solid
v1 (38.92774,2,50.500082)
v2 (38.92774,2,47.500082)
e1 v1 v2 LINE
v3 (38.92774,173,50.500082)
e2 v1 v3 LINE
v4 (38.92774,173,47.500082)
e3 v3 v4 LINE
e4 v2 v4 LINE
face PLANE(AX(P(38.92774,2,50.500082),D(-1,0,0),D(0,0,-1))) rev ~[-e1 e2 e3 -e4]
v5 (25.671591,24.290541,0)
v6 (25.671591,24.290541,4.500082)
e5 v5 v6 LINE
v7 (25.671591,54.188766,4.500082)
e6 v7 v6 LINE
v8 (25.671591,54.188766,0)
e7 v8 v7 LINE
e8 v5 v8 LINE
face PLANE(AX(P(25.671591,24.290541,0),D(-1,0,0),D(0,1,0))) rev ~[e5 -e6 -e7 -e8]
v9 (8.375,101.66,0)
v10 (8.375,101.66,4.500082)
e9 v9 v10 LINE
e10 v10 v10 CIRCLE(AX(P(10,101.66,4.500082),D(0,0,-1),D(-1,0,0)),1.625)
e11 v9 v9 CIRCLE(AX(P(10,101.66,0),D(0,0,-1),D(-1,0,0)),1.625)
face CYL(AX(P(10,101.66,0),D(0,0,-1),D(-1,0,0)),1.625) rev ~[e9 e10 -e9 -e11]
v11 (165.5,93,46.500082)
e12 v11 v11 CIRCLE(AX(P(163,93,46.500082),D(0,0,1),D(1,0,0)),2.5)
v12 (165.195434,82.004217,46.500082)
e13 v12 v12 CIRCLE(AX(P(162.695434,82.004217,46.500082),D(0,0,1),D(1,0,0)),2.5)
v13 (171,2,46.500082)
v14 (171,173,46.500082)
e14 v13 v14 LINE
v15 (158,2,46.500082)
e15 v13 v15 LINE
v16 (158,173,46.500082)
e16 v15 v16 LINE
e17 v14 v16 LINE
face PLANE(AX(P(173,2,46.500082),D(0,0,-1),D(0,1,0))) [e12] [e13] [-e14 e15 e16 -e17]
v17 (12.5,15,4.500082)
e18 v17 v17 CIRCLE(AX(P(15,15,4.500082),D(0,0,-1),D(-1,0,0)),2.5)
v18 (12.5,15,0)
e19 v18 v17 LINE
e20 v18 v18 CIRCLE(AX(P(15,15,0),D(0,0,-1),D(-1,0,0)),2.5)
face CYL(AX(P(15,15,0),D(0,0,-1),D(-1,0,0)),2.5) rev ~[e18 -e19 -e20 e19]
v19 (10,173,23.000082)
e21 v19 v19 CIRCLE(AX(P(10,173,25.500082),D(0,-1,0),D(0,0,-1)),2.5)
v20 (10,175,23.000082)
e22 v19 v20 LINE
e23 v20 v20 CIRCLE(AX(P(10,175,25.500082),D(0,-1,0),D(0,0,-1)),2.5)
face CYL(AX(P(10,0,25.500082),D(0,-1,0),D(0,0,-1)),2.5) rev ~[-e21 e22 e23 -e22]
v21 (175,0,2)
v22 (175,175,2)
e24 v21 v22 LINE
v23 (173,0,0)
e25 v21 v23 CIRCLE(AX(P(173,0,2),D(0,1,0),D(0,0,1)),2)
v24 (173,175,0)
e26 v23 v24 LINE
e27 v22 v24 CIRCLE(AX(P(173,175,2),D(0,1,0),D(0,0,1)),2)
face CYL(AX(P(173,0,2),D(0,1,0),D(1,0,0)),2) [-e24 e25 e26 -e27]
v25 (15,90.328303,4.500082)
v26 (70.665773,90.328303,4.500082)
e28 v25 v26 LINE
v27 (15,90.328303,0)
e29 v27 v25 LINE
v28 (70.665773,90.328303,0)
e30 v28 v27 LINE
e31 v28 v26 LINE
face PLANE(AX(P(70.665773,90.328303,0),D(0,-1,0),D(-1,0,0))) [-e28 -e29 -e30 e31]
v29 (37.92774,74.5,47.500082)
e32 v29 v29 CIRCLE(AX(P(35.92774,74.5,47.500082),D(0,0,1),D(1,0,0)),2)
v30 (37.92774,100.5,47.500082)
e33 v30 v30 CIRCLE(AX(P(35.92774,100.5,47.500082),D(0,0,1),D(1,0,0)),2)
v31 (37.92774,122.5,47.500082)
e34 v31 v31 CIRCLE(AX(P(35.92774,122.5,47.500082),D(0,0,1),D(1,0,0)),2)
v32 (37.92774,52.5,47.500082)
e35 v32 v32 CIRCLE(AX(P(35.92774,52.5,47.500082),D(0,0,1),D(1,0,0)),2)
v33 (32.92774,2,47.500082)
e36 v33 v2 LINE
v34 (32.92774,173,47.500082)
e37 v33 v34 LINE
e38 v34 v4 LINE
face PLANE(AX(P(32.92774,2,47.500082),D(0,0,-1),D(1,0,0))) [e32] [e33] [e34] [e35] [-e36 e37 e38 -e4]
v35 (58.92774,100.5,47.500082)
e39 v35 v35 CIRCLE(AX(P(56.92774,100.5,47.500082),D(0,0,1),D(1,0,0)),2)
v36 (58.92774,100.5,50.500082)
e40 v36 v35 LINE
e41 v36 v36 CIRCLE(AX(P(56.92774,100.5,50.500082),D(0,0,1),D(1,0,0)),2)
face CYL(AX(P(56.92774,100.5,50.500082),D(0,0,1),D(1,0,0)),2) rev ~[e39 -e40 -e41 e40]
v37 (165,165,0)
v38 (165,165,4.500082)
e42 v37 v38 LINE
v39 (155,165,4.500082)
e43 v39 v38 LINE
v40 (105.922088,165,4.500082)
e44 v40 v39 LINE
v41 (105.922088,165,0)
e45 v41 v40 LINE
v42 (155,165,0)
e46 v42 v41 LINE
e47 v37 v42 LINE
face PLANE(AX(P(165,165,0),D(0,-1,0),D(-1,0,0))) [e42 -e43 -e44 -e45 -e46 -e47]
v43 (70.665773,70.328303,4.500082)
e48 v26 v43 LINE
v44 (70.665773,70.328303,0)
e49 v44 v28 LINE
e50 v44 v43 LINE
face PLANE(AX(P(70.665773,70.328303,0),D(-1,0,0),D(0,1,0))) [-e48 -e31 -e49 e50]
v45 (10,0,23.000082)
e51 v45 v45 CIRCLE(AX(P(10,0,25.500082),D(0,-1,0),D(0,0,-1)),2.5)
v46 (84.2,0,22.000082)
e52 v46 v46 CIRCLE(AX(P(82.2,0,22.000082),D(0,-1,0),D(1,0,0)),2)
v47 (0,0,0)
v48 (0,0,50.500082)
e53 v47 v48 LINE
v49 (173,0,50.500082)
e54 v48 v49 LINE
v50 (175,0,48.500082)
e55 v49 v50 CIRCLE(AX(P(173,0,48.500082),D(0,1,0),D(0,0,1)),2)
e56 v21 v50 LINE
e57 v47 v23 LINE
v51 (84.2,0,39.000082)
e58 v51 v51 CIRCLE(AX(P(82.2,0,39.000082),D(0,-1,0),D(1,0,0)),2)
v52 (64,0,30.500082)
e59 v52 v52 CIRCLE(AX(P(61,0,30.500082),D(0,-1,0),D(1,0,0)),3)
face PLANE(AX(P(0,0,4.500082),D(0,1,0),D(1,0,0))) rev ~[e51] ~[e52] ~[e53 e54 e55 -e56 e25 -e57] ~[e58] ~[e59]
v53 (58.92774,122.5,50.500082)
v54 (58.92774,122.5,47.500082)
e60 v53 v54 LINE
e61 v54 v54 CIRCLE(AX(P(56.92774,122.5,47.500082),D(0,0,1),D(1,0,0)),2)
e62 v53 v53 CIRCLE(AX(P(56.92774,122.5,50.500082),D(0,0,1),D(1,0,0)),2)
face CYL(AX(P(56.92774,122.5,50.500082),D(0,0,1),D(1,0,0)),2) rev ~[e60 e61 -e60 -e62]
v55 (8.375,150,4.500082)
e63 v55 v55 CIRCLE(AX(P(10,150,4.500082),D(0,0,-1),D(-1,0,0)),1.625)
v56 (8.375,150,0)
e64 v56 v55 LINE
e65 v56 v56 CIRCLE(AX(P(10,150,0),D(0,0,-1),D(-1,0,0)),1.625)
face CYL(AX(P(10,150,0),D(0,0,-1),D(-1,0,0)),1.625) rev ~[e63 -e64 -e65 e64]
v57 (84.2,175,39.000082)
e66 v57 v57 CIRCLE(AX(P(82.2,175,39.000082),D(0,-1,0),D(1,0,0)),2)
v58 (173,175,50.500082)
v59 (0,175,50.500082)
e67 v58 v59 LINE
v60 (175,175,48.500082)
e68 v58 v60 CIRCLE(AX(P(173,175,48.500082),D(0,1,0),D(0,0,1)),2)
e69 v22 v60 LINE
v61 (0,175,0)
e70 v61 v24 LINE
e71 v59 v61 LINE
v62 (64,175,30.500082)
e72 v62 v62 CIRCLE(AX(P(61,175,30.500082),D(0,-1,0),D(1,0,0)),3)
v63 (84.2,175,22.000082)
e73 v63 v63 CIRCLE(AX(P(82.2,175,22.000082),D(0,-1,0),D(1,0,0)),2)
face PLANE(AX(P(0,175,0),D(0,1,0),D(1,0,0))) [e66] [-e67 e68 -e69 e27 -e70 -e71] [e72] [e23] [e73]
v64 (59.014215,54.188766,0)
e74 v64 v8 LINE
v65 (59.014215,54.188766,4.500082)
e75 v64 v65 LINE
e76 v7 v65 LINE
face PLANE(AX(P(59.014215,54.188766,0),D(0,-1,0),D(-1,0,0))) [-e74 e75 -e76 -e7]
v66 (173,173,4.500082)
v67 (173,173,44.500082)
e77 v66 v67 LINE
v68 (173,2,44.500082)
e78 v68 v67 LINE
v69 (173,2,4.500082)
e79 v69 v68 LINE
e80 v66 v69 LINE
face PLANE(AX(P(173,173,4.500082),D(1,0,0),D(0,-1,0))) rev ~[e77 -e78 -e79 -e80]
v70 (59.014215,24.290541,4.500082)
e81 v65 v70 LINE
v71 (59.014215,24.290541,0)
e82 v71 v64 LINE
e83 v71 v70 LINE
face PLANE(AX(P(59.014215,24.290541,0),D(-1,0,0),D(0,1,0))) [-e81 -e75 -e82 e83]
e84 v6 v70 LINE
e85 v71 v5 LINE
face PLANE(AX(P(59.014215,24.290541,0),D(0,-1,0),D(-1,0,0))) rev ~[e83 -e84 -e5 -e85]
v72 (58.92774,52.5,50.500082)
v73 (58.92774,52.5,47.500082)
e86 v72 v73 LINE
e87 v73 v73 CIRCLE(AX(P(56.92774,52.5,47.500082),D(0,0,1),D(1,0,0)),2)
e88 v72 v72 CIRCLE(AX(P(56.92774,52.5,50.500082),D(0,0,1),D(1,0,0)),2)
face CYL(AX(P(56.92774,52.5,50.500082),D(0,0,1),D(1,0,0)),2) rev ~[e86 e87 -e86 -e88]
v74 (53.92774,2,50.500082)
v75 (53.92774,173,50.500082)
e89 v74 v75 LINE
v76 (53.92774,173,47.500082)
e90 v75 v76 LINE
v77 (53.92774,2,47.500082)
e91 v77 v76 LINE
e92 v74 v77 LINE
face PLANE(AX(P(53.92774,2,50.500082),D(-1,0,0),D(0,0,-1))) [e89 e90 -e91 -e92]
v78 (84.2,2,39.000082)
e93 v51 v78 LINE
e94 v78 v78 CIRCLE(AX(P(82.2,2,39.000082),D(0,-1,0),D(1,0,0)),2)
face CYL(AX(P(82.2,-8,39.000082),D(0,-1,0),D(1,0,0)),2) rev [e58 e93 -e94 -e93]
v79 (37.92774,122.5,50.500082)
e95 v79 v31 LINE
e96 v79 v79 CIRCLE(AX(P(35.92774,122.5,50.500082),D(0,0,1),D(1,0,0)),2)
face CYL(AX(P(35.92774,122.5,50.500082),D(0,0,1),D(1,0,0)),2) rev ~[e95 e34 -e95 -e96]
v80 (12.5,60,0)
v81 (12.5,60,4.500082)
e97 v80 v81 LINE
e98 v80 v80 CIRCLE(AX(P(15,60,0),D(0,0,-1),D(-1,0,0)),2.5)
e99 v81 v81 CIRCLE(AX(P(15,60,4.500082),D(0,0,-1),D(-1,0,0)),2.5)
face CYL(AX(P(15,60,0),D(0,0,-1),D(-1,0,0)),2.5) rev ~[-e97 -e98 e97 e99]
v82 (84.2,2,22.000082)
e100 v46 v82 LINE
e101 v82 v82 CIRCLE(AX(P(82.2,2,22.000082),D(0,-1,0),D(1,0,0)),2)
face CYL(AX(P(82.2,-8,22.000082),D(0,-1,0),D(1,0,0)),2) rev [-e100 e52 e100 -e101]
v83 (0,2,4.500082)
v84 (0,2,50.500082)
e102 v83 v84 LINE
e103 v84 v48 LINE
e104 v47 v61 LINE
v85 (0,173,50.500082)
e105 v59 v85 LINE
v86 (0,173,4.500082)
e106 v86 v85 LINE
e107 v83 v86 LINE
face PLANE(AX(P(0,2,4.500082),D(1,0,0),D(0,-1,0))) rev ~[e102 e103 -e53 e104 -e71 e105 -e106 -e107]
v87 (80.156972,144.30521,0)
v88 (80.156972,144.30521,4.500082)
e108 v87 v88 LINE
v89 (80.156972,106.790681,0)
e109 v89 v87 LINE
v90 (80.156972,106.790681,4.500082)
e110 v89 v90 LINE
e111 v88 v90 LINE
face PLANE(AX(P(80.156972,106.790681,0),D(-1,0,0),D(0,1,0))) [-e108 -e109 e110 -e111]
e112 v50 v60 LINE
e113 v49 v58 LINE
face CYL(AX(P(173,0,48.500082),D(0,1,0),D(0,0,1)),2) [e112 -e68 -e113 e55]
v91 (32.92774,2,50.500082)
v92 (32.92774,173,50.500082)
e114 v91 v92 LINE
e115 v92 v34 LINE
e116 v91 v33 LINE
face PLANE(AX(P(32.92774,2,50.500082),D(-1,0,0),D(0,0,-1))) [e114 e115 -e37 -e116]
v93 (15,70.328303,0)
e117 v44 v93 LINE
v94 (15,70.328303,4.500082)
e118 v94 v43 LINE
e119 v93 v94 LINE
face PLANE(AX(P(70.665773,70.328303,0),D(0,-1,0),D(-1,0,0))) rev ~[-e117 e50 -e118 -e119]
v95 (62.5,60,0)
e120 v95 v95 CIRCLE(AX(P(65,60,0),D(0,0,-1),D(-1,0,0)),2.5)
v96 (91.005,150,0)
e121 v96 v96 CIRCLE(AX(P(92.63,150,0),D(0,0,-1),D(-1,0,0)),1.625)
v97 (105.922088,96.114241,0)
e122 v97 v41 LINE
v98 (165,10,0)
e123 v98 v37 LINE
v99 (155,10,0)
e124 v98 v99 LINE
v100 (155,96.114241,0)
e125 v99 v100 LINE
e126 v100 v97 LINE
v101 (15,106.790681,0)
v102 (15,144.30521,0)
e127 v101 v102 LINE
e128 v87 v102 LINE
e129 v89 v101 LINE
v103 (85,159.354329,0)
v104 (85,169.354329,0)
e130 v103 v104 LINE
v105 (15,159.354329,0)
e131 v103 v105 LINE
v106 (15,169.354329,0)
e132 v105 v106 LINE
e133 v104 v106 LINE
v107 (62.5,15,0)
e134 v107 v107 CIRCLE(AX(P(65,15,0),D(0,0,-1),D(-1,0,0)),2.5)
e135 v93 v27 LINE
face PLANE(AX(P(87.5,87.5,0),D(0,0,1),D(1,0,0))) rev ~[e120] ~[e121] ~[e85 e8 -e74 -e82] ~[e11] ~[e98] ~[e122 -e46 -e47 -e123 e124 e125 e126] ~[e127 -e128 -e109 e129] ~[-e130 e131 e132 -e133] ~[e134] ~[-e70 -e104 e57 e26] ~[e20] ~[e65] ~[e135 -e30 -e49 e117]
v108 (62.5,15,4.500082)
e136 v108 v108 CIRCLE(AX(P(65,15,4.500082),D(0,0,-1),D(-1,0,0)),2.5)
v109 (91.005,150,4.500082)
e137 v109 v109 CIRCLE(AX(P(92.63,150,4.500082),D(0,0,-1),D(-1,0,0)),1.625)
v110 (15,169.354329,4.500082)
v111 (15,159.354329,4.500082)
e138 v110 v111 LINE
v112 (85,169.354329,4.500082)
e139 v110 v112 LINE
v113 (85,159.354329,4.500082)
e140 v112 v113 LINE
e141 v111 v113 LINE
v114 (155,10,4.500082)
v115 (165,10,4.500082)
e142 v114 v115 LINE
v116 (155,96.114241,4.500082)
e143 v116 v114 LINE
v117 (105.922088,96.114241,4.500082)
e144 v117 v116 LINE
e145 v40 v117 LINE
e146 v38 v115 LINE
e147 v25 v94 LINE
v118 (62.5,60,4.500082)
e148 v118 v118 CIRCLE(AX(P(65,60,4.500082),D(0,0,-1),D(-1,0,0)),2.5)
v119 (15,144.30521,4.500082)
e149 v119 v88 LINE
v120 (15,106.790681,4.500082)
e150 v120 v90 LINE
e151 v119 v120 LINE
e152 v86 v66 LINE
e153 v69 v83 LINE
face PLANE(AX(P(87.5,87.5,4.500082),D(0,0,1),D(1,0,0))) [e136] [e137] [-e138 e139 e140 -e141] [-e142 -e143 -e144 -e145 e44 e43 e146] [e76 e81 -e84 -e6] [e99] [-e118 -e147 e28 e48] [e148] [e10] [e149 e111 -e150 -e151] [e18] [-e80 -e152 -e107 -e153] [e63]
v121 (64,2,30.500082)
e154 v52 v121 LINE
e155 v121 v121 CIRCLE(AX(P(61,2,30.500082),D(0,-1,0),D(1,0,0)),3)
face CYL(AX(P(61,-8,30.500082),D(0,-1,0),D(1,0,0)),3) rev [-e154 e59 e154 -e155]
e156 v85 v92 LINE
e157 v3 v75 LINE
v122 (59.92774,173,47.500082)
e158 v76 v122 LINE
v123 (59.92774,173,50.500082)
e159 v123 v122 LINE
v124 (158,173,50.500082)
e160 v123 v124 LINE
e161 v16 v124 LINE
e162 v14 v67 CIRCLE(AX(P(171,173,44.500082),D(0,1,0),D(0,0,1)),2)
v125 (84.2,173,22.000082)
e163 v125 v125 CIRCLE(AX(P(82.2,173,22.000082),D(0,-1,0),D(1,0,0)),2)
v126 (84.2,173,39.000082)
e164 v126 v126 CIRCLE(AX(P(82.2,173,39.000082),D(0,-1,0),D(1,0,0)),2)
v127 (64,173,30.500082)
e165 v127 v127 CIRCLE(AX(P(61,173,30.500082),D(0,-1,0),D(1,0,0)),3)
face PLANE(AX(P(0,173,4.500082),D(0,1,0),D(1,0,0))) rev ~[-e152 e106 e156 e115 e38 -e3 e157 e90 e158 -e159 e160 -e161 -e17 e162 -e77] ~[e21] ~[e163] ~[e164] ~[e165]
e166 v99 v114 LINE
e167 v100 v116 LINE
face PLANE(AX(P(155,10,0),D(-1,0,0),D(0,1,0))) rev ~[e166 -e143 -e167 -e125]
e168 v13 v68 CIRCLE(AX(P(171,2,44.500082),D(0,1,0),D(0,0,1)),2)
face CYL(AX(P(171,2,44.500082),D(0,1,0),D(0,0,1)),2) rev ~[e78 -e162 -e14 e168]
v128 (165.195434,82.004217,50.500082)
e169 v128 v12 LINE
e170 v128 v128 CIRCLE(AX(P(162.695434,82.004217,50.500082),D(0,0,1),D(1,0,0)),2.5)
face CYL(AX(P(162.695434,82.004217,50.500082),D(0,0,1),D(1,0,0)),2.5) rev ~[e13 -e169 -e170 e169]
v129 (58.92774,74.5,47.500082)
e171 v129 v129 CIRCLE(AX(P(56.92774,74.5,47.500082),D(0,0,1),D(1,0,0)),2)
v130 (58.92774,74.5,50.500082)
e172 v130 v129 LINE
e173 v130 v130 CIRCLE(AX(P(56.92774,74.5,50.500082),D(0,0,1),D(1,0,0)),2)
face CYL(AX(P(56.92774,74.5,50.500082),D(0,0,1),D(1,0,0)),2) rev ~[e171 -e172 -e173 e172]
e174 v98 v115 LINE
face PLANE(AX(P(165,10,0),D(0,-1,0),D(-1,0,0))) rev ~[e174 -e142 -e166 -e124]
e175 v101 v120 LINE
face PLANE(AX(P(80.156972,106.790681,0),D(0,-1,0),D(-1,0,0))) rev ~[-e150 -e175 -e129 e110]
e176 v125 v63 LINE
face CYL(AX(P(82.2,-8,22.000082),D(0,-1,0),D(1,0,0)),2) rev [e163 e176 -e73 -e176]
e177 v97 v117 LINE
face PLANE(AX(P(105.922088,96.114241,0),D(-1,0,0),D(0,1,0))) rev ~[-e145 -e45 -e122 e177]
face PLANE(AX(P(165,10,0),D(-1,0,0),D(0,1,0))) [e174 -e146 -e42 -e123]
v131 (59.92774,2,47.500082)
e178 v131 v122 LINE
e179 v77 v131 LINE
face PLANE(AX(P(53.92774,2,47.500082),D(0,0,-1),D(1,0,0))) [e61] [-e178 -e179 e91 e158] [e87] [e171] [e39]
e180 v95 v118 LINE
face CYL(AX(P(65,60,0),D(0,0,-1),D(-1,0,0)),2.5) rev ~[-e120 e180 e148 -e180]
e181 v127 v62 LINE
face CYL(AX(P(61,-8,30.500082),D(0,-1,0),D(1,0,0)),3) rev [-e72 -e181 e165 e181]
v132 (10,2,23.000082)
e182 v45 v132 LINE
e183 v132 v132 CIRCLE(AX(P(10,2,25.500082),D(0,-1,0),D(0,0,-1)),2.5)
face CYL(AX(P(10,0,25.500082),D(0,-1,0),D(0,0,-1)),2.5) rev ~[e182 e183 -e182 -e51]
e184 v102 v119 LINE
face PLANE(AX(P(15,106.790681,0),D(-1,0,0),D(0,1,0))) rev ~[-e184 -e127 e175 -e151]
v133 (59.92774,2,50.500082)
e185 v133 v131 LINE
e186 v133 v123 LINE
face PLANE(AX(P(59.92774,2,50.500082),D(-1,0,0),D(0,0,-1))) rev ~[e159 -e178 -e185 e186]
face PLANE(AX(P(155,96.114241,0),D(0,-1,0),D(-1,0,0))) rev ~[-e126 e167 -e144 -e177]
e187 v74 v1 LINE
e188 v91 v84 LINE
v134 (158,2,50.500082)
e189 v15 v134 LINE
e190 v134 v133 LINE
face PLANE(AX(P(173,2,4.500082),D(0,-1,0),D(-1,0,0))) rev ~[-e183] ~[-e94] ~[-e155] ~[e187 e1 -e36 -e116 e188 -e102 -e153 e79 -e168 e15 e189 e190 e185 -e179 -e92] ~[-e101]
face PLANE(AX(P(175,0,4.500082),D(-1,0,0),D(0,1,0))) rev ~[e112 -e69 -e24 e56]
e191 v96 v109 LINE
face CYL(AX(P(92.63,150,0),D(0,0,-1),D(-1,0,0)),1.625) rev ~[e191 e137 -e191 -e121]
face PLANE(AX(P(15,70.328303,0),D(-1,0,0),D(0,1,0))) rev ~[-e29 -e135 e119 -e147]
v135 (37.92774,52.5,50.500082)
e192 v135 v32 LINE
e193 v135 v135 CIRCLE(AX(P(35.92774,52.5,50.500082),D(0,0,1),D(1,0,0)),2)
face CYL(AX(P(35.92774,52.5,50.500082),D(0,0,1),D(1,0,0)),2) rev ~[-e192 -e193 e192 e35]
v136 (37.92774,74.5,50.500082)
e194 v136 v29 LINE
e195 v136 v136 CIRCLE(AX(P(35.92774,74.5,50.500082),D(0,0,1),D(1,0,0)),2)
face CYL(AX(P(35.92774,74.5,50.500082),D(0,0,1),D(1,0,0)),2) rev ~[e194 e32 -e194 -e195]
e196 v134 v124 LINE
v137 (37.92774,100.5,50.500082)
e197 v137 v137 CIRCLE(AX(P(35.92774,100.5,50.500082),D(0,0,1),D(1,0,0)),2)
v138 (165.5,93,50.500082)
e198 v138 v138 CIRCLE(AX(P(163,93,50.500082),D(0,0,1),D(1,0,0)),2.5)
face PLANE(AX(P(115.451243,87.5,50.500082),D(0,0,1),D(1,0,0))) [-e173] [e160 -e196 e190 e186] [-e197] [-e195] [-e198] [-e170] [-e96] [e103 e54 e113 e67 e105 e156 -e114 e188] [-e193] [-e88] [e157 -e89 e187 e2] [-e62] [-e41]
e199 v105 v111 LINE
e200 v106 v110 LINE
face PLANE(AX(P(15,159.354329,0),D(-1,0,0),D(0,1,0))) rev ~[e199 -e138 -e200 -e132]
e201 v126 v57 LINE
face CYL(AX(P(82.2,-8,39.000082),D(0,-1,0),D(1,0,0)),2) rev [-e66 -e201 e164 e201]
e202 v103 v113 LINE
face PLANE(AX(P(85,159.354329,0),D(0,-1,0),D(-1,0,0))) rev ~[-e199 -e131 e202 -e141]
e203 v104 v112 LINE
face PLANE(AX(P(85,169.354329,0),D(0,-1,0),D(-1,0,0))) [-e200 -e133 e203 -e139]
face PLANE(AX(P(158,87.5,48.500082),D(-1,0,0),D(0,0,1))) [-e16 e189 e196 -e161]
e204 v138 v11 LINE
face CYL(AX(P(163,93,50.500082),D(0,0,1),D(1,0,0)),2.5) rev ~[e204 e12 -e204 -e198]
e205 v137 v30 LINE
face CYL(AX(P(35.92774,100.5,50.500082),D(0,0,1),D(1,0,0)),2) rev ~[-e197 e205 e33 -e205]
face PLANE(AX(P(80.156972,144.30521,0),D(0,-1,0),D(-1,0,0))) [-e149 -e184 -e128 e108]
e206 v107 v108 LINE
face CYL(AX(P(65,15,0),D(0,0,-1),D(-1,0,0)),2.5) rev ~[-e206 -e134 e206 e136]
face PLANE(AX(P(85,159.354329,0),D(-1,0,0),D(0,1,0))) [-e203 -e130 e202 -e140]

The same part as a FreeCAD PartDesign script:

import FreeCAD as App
import Part
import Sketcher
Q = App.Units.Quantity


def edges_at(feature, points):
    """Names of the edges that pass closest to the given points."""
    edges = feature.Shape.Edges
    near = lambda p: min(range(len(edges)), key=lambda i: edges[i].distToShape(Part.Vertex(*p))[0])
    return sorted({f"Edge{near(p) + 1}" for p in points})


def add_polygon(sketch, points):
    """Adds a closed chain of lines whose ends are joined by coincident constraints."""
    first, n = sketch.GeometryCount, len(points)
    for a, b in zip(points, points[1:] + points[:1]):
        sketch.addGeometry(Part.LineSegment(App.Vector(*a, 0), App.Vector(*b, 0)), False)
    for i in range(n):
        sketch.addConstraint(Sketcher.Constraint("Coincident", first + i, 2, first + (i + 1) % n, 1))

doc = App.newDocument("Part")
body = doc.addObject("PartDesign::Body", "Body")

sketch1 = doc.addObject("Sketcher::SketchObject", "Sketch")
body.addObject(sketch1)
sketch1.AttachmentSupport = (doc.XY_Plane, [""])
sketch1.MapMode = "FlatFace"
add_polygon(sketch1, [(0, 175), (0, 0), (175, 0), (175, 175)])
sketch1.addConstraint(Sketcher.Constraint("Vertical", 0))
sketch1.addConstraint(Sketcher.Constraint("Horizontal", 1))
sketch1.addConstraint(Sketcher.Constraint("Vertical", 2))
sketch1.addConstraint(Sketcher.Constraint("Horizontal", 3))
sketch1.addConstraint(Sketcher.Constraint("Coincident", 0, 2, -1, 1))
sketch1.addConstraint(Sketcher.Constraint("Equal", 3, 0))
sketch1.addConstraint(Sketcher.Constraint("DistanceX", 1, 1, 1, 2, Q("175 mm")))
pad1 = doc.addObject("PartDesign::Pad", "Pad")
body.addObject(pad1)
pad1.Profile = sketch1
pad1.Length = 4.500082

sketch2 = doc.addObject("Sketcher::SketchObject", "Sketch001")
body.addObject(sketch2)
sketch2.AttachmentSupport = (doc.XY_Plane, [""])
sketch2.MapMode = "FlatFace"
sketch2.AttachmentOffset = App.Placement(App.Vector(0, 0, 4.500082), App.Rotation())
add_polygon(sketch2, [(0, 2), (0, 0), (175, 0), (175, 175), (0, 175), (0, 173), (173, 173), (173, 2)])
sketch2.addConstraint(Sketcher.Constraint("Vertical", 0))
sketch2.addConstraint(Sketcher.Constraint("Horizontal", 1))
sketch2.addConstraint(Sketcher.Constraint("Vertical", 2))
sketch2.addConstraint(Sketcher.Constraint("Horizontal", 3))
sketch2.addConstraint(Sketcher.Constraint("Vertical", 4))
sketch2.addConstraint(Sketcher.Constraint("Horizontal", 5))
sketch2.addConstraint(Sketcher.Constraint("Vertical", 6))
sketch2.addConstraint(Sketcher.Constraint("Horizontal", 7))
sketch2.addConstraint(Sketcher.Constraint("Coincident", 0, 2, -1, 1))
sketch2.addConstraint(Sketcher.Constraint("PointOnObject", 3, 2, -2))
sketch2.addConstraint(Sketcher.Constraint("Equal", 3, 2))
sketch2.addConstraint(Sketcher.Constraint("Equal", 0, 4))
sketch2.addConstraint(Sketcher.Constraint("DistanceX", 1, 1, 1, 2, Q("175 mm")))
sketch2.addConstraint(Sketcher.Constraint("DistanceX", 5, 1, 5, 2, Q("173 mm")))
sketch2.addConstraint(Sketcher.Constraint("DistanceY", 0, 2, 0, 1, Q("2 mm")))
pad2 = doc.addObject("PartDesign::Pad", "Pad001")
body.addObject(pad2)
pad2.Profile = sketch2
pad2.Length = 46

sketch3 = doc.addObject("Sketcher::SketchObject", "Sketch002")
body.addObject(sketch3)
sketch3.AttachmentSupport = (doc.YZ_Plane, [""])
sketch3.MapMode = "FlatFace"
sketch3.AttachmentOffset = App.Placement(App.Vector(0, 0, 173), App.Rotation())
add_polygon(sketch3, [(173, 46.500082), (2, 46.500082), (2, 50.500082), (173, 50.500082)])
sketch3.addConstraint(Sketcher.Constraint("Horizontal", 0))
sketch3.addConstraint(Sketcher.Constraint("Vertical", 1))
sketch3.addConstraint(Sketcher.Constraint("Horizontal", 2))
sketch3.addConstraint(Sketcher.Constraint("Vertical", 3))
sketch3.addConstraint(Sketcher.Constraint("DistanceX", 0, 2, 0, 1, Q("171 mm")))
sketch3.addConstraint(Sketcher.Constraint("DistanceY", 1, 1, 1, 2, Q("4 mm")))
sketch3.addConstraint(Sketcher.Constraint("DistanceX", -1, 1, 0, 2, Q("2 mm")))
sketch3.addConstraint(Sketcher.Constraint("DistanceY", -1, 1, 0, 2, Q("46.500082 mm")))
pad3 = doc.addObject("PartDesign::Pad", "Pad002")
body.addObject(pad3)
pad3.Profile = sketch3
pad3.Length = 15
pad3.Reversed = True

sketch4 = doc.addObject("Sketcher::SketchObject", "Sketch003")
body.addObject(sketch4)
sketch4.AttachmentSupport = (doc.XY_Plane, [""])
sketch4.MapMode = "FlatFace"
sketch4.AttachmentOffset = App.Placement(App.Vector(0, 0, 50.500082), App.Rotation())
sketch4.addGeometry(Part.Circle(App.Vector(162.695434, 82.004217, 0), App.Vector(0, 0, 1), 2.5), False)
sketch4.addGeometry(Part.Circle(App.Vector(163, 93, 0), App.Vector(0, 0, 1), 2.5), False)
sketch4.addConstraint(Sketcher.Constraint("Equal", 0, 1))
sketch4.addConstraint(Sketcher.Constraint("Diameter", 0, Q("5 mm")))
sketch4.addConstraint(Sketcher.Constraint("DistanceX", -1, 1, 1, 3, Q("163 mm")))
sketch4.addConstraint(Sketcher.Constraint("DistanceY", -1, 1, 1, 3, Q("93 mm")))
sketch4.addConstraint(Sketcher.Constraint("DistanceX", -1, 1, 0, 3, Q("162.695434 mm")))
sketch4.addConstraint(Sketcher.Constraint("DistanceY", -1, 1, 0, 3, Q("82.004217 mm")))
pocket1 = doc.addObject("PartDesign::Pocket", "Pocket")
body.addObject(pocket1)
pocket1.Profile = sketch4
pocket1.Length = 15

sketch5 = doc.addObject("Sketcher::SketchObject", "Sketch004")
body.addObject(sketch5)
sketch5.AttachmentSupport = (doc.XZ_Plane, [""])
sketch5.MapMode = "FlatFace"
sketch5.addGeometry(Part.Circle(App.Vector(10, 25.500082, 0), App.Vector(0, 0, 1), 2.5), False)
sketch5.addConstraint(Sketcher.Constraint("Diameter", 0, Q("5 mm")))
sketch5.addConstraint(Sketcher.Constraint("DistanceX", -1, 1, 0, 3, Q("10 mm")))
sketch5.addConstraint(Sketcher.Constraint("DistanceY", -1, 1, 0, 3, Q("25.500082 mm")))
pocket2 = doc.addObject("PartDesign::Pocket", "Pocket001")
body.addObject(pocket2)
pocket2.Profile = sketch5
pocket2.Type = "ThroughAll"

sketch6 = doc.addObject("Sketcher::SketchObject", "Sketch005")
body.addObject(sketch6)
sketch6.AttachmentSupport = (doc.XY_Plane, [""])
sketch6.MapMode = "FlatFace"
add_polygon(sketch6, [(165, 165), (165, 10), (155, 10), (155, 165)])
sketch6.addConstraint(Sketcher.Constraint("Vertical", 0))
sketch6.addConstraint(Sketcher.Constraint("Horizontal", 1))
sketch6.addConstraint(Sketcher.Constraint("Vertical", 2))
sketch6.addConstraint(Sketcher.Constraint("Horizontal", 3))
sketch6.addConstraint(Sketcher.Constraint("DistanceX", 1, 2, 1, 1, Q("10 mm")))
sketch6.addConstraint(Sketcher.Constraint("DistanceY", 0, 2, 0, 1, Q("155 mm")))
sketch6.addConstraint(Sketcher.Constraint("DistanceX", -1, 1, 0, 2, Q("165 mm")))
sketch6.addConstraint(Sketcher.Constraint("DistanceY", -1, 1, 0, 2, Q("10 mm")))
pocket3 = doc.addObject("PartDesign::Pocket", "Pocket002")
body.addObject(pocket3)
pocket3.Profile = sketch6
pocket3.Length = 15
pocket3.Reversed = True

sketch7 = doc.addObject("Sketcher::SketchObject", "Sketch006")
body.addObject(sketch7)
sketch7.AttachmentSupport = (doc.XY_Plane, [""])
sketch7.MapMode = "FlatFace"
sketch7.addGeometry(Part.Circle(App.Vector(92.63, 150, 0), App.Vector(0, 0, 1), 1.625), False)
sketch7.addGeometry(Part.Circle(App.Vector(10, 150, 0), App.Vector(0, 0, 1), 1.625), False)
sketch7.addGeometry(Part.Circle(App.Vector(10, 101.66, 0), App.Vector(0, 0, 1), 1.625), False)
sketch7.addConstraint(Sketcher.Constraint("Equal", 0, 1))
sketch7.addConstraint(Sketcher.Constraint("Equal", 1, 2))
sketch7.addConstraint(Sketcher.Constraint("Horizontal", 0, 3, 1, 3))
sketch7.addConstraint(Sketcher.Constraint("Vertical", 1, 3, 2, 3))
sketch7.addConstraint(Sketcher.Constraint("Diameter", 0, Q("3.25 mm")))
sketch7.addConstraint(Sketcher.Constraint("DistanceY", -1, 1, 0, 3, Q("150 mm")))
sketch7.addConstraint(Sketcher.Constraint("DistanceX", -1, 1, 1, 3, Q("10 mm")))
sketch7.addConstraint(Sketcher.Constraint("DistanceX", -1, 1, 0, 3, Q("92.63 mm")))
sketch7.addConstraint(Sketcher.Constraint("DistanceY", -1, 1, 2, 3, Q("101.66 mm")))
pocket4 = doc.addObject("PartDesign::Pocket", "Pocket003")
body.addObject(pocket4)
pocket4.Profile = sketch7
pocket4.Length = 15
pocket4.Reversed = True
doc.recompute()

fillet = doc.addObject("PartDesign::Fillet", "Fillet")
body.addObject(fillet)
fillet.Base = (pocket4, edges_at(pocket4, [(173, 87.5, 46.5)]))
fillet.Radius = 2
doc.recompute()

fillet2 = doc.addObject("PartDesign::Fillet", "Fillet001")
body.addObject(fillet2)
fillet2.Base = (fillet, edges_at(fillet, [(175, 87.5, 50.5)]))
fillet2.Radius = 2
doc.recompute()

fillet3 = doc.addObject("PartDesign::Fillet", "Fillet002")
body.addObject(fillet3)
fillet3.Base = (fillet2, edges_at(fillet2, [(175, 87.5, 0)]))
fillet3.Radius = 2

sketch8 = doc.addObject("Sketcher::SketchObject", "Sketch007")
body.addObject(sketch8)
sketch8.AttachmentSupport = (doc.XY_Plane, [""])
sketch8.MapMode = "FlatFace"
sketch8.addGeometry(Part.Circle(App.Vector(15, 15, 0), App.Vector(0, 0, 1), 2.5), False)
sketch8.addGeometry(Part.Circle(App.Vector(65, 15, 0), App.Vector(0, 0, 1), 2.5), False)
sketch8.addGeometry(Part.Circle(App.Vector(65, 60, 0), App.Vector(0, 0, 1), 2.5), False)
sketch8.addGeometry(Part.Circle(App.Vector(15, 60, 0), App.Vector(0, 0, 1), 2.5), False)
sketch8.addConstraint(Sketcher.Constraint("Equal", 0, 1))
sketch8.addConstraint(Sketcher.Constraint("Equal", 1, 2))
sketch8.addConstraint(Sketcher.Constraint("Equal", 2, 3))
sketch8.addConstraint(Sketcher.Constraint("Horizontal", 0, 3, 1, 3))
sketch8.addConstraint(Sketcher.Constraint("Horizontal", 2, 3, 3, 3))
sketch8.addConstraint(Sketcher.Constraint("Vertical", 1, 3, 2, 3))
sketch8.addConstraint(Sketcher.Constraint("Vertical", 0, 3, 3, 3))
sketch8.addConstraint(Sketcher.Constraint("Diameter", 0, Q("5 mm")))
sketch8.addConstraint(Sketcher.Constraint("DistanceX", -1, 1, 0, 3, Q("15 mm")))
sketch8.addConstraint(Sketcher.Constraint("DistanceY", -1, 1, 0, 3, Q("15 mm")))
sketch8.addConstraint(Sketcher.Constraint("DistanceX", -1, 1, 1, 3, Q("65 mm")))
sketch8.addConstraint(Sketcher.Constraint("DistanceY", -1, 1, 2, 3, Q("60 mm")))
pocket5 = doc.addObject("PartDesign::Pocket", "Pocket004")
body.addObject(pocket5)
pocket5.Profile = sketch8
pocket5.Length = 10
pocket5.Reversed = True

sketch9 = doc.addObject("Sketcher::SketchObject", "Sketch008")
body.addObject(sketch9)
sketch9.AttachmentSupport = (doc.XY_Plane, [""])
sketch9.MapMode = "FlatFace"
add_polygon(sketch9, [(155, 165), (155, 96.114241), (105.922088, 96.114241), (105.922088, 165)])
add_polygon(sketch9, [(80.156972, 144.30521), (80.156972, 106.790681), (15, 106.790681), (15, 144.30521)])
add_polygon(sketch9, [(59.014215, 54.188766), (59.014215, 24.290541), (25.671591, 24.290541), (25.671591, 54.188766)])
add_polygon(sketch9, [(85, 169.354329), (85, 159.354329), (15, 159.354329), (15, 169.354329)])
add_polygon(sketch9, [(70.665773, 90.328303), (70.665773, 70.328303), (15, 70.328303), (15, 90.328303)])
sketch9.addConstraint(Sketcher.Constraint("Vertical", 0))
sketch9.addConstraint(Sketcher.Constraint("Horizontal", 1))
sketch9.addConstraint(Sketcher.Constraint("Vertical", 2))
sketch9.addConstraint(Sketcher.Constraint("Horizontal", 3))
sketch9.addConstraint(Sketcher.Constraint("Vertical", 4))
sketch9.addConstraint(Sketcher.Constraint("Horizontal", 5))
sketch9.addConstraint(Sketcher.Constraint("Vertical", 6))
sketch9.addConstraint(Sketcher.Constraint("Horizontal", 7))
sketch9.addConstraint(Sketcher.Constraint("Vertical", 8))
sketch9.addConstraint(Sketcher.Constraint("Horizontal", 9))
sketch9.addConstraint(Sketcher.Constraint("Vertical", 10))
sketch9.addConstraint(Sketcher.Constraint("Horizontal", 11))
sketch9.addConstraint(Sketcher.Constraint("Vertical", 12))
sketch9.addConstraint(Sketcher.Constraint("Horizontal", 13))
sketch9.addConstraint(Sketcher.Constraint("Vertical", 14))
sketch9.addConstraint(Sketcher.Constraint("Horizontal", 15))
sketch9.addConstraint(Sketcher.Constraint("Vertical", 16))
sketch9.addConstraint(Sketcher.Constraint("Horizontal", 17))
sketch9.addConstraint(Sketcher.Constraint("Vertical", 18))
sketch9.addConstraint(Sketcher.Constraint("Horizontal", 19))
sketch9.addConstraint(Sketcher.Constraint("Vertical", 6, 2, 13, 2))
sketch9.addConstraint(Sketcher.Constraint("Vertical", 14, 2, 17, 2))
sketch9.addConstraint(Sketcher.Constraint("DistanceX", 13, 2, 13, 1, Q("70 mm")))
sketch9.addConstraint(Sketcher.Constraint("DistanceY", 12, 2, 12, 1, Q("10 mm")))
sketch9.addConstraint(Sketcher.Constraint("DistanceY", 16, 2, 16, 1, Q("20 mm")))
sketch9.addConstraint(Sketcher.Constraint("DistanceX", -1, 1, 0, 2, Q("155 mm")))
sketch9.addConstraint(Sketcher.Constraint("DistanceY", -1, 1, 2, 2, Q("165 mm")))
sketch9.addConstraint(Sketcher.Constraint("DistanceX", -1, 1, 5, 2, Q("15 mm")))
sketch9.addConstraint(Sketcher.Constraint("DistanceY", 0, 2, 0, 1, Q("68.885759 mm")))
sketch9.addConstraint(Sketcher.Constraint("DistanceY", 4, 2, 4, 1, Q("37.514529 mm")))
sketch9.addConstraint(Sketcher.Constraint("DistanceY", 8, 2, 1, 2, Q("71.8237 mm")))
sketch9.addConstraint(Sketcher.Constraint("DistanceX", 16, 2, 4, 2, Q("9.491199 mm")))
sketch9.addConstraint(Sketcher.Constraint("DistanceX", 1, 2, 1, 1, Q("49.077912 mm")))
sketch9.addConstraint(Sketcher.Constraint("DistanceX", 5, 2, 5, 1, Q("65.156972 mm")))
sketch9.addConstraint(Sketcher.Constraint("DistanceX", 9, 2, 9, 1, Q("33.342624 mm")))
sketch9.addConstraint(Sketcher.Constraint("DistanceY", 8, 2, 8, 1, Q("29.898225 mm")))
sketch9.addConstraint(Sketcher.Constraint("DistanceY", -1, 1, 4, 2, Q("106.790681 mm")))
sketch9.addConstraint(Sketcher.Constraint("DistanceX", -1, 1, 9, 2, Q("25.671591 mm")))
sketch9.addConstraint(Sketcher.Constraint("DistanceY", -1, 1, 12, 2, Q("159.354329 mm")))
sketch9.addConstraint(Sketcher.Constraint("DistanceY", 16, 2, 4, 2, Q("36.462379 mm")))
pocket6 = doc.addObject("PartDesign::Pocket", "Pocket005")
body.addObject(pocket6)
pocket6.Profile = sketch9
pocket6.Length = 7.5
pocket6.Reversed = True

sketch10 = doc.addObject("Sketcher::SketchObject", "Sketch009")
body.addObject(sketch10)
sketch10.AttachmentSupport = (doc.XZ_Plane, [""])
sketch10.MapMode = "FlatFace"
sketch10.AttachmentOffset = App.Placement(App.Vector(0, 0, -2), App.Rotation())
add_polygon(sketch10, [(32.92774, 47.500082), (32.92774, 50.500082), (38.92774, 50.500082), (38.92774, 47.500082)])
sketch10.addConstraint(Sketcher.Constraint("Vertical", 0))
sketch10.addConstraint(Sketcher.Constraint("Horizontal", 1))
sketch10.addConstraint(Sketcher.Constraint("Vertical", 2))
sketch10.addConstraint(Sketcher.Constraint("Horizontal", 3))
sketch10.addConstraint(Sketcher.Constraint("DistanceX", 1, 1, 1, 2, Q("6 mm")))
sketch10.addConstraint(Sketcher.Constraint("DistanceY", 0, 1, 0, 2, Q("3 mm")))
sketch10.addConstraint(Sketcher.Constraint("DistanceX", -1, 1, 0, 2, Q("32.92774 mm")))
sketch10.addConstraint(Sketcher.Constraint("DistanceY", -1, 1, 0, 2, Q("50.500082 mm")))
pad4 = doc.addObject("PartDesign::Pad", "Pad003")
body.addObject(pad4)
pad4.Profile = sketch10
pad4.Type = "UpToFirst"
pad4.Reversed = True

sketch11 = doc.addObject("Sketcher::SketchObject", "Sketch010")
body.addObject(sketch11)
sketch11.AttachmentSupport = (doc.XZ_Plane, [""])
sketch11.MapMode = "FlatFace"
sketch11.AttachmentOffset = App.Placement(App.Vector(0, 0, -2), App.Rotation())
add_polygon(sketch11, [(53.92774, 47.500082), (53.92774, 50.500082), (59.92774, 50.500082), (59.92774, 47.500082)])
sketch11.addConstraint(Sketcher.Constraint("Vertical", 0))
sketch11.addConstraint(Sketcher.Constraint("Horizontal", 1))
sketch11.addConstraint(Sketcher.Constraint("Vertical", 2))
sketch11.addConstraint(Sketcher.Constraint("Horizontal", 3))
sketch11.addConstraint(Sketcher.Constraint("DistanceX", 1, 1, 1, 2, Q("6 mm")))
sketch11.addConstraint(Sketcher.Constraint("DistanceY", 0, 1, 0, 2, Q("3 mm")))
sketch11.addConstraint(Sketcher.Constraint("DistanceX", -1, 1, 0, 2, Q("53.92774 mm")))
sketch11.addConstraint(Sketcher.Constraint("DistanceY", -1, 1, 0, 2, Q("50.500082 mm")))
pad5 = doc.addObject("PartDesign::Pad", "Pad004")
body.addObject(pad5)
pad5.Profile = sketch11
pad5.Type = "UpToFirst"
pad5.Reversed = True

sketch12 = doc.addObject("Sketcher::SketchObject", "Sketch011")
body.addObject(sketch12)
sketch12.AttachmentSupport = (doc.XY_Plane, [""])
sketch12.MapMode = "FlatFace"
sketch12.AttachmentOffset = App.Placement(App.Vector(0, 0, 50.500082), App.Rotation())
sketch12.addGeometry(Part.Circle(App.Vector(56.92774, 74.5, 0), App.Vector(0, 0, 1), 2), False)
sketch12.addGeometry(Part.Circle(App.Vector(35.92774, 74.5, 0), App.Vector(0, 0, 1), 2), False)
sketch12.addGeometry(Part.Circle(App.Vector(56.92774, 52.5, 0), App.Vector(0, 0, 1), 2), False)
sketch12.addGeometry(Part.Circle(App.Vector(35.92774, 52.5, 0), App.Vector(0, 0, 1), 2), False)
sketch12.addGeometry(Part.Circle(App.Vector(56.92774, 100.5, 0), App.Vector(0, 0, 1), 2), False)
sketch12.addGeometry(Part.Circle(App.Vector(35.92774, 100.5, 0), App.Vector(0, 0, 1), 2), False)
sketch12.addGeometry(Part.Circle(App.Vector(35.92774, 122.5, 0), App.Vector(0, 0, 1), 2), False)
sketch12.addGeometry(Part.Circle(App.Vector(56.92774, 122.5, 0), App.Vector(0, 0, 1), 2), False)
sketch12.addConstraint(Sketcher.Constraint("Equal", 0, 1))
sketch12.addConstraint(Sketcher.Constraint("Equal", 1, 2))
sketch12.addConstraint(Sketcher.Constraint("Equal", 2, 3))
sketch12.addConstraint(Sketcher.Constraint("Equal", 3, 4))
sketch12.addConstraint(Sketcher.Constraint("Equal", 4, 5))
sketch12.addConstraint(Sketcher.Constraint("Equal", 5, 6))
sketch12.addConstraint(Sketcher.Constraint("Equal", 6, 7))
sketch12.addConstraint(Sketcher.Constraint("Horizontal", 0, 3, 1, 3))
sketch12.addConstraint(Sketcher.Constraint("Horizontal", 2, 3, 3, 3))
sketch12.addConstraint(Sketcher.Constraint("Horizontal", 4, 3, 5, 3))
sketch12.addConstraint(Sketcher.Constraint("Horizontal", 6, 3, 7, 3))
sketch12.addConstraint(Sketcher.Constraint("Vertical", 0, 3, 2, 3))
sketch12.addConstraint(Sketcher.Constraint("Vertical", 1, 3, 3, 3))
sketch12.addConstraint(Sketcher.Constraint("Vertical", 2, 3, 4, 3))
sketch12.addConstraint(Sketcher.Constraint("Vertical", 3, 3, 5, 3))
sketch12.addConstraint(Sketcher.Constraint("Vertical", 5, 3, 6, 3))
sketch12.addConstraint(Sketcher.Constraint("Vertical", 4, 3, 7, 3))
sketch12.addConstraint(Sketcher.Constraint("Diameter", 0, Q("4 mm")))
sketch12.addConstraint(Sketcher.Constraint("DistanceX", 1, 3, 0, 3, Q("21 mm")))
sketch12.addConstraint(Sketcher.Constraint("DistanceY", 2, 3, 0, 3, Q("22 mm")))
sketch12.addConstraint(Sketcher.Constraint("DistanceY", 0, 3, 4, 3, Q("26 mm")))
sketch12.addConstraint(Sketcher.Constraint("DistanceY", 5, 3, 6, 3, Q("22 mm")))
sketch12.addConstraint(Sketcher.Constraint("DistanceY", -1, 1, 0, 3, Q("74.5 mm")))
sketch12.addConstraint(Sketcher.Constraint("DistanceX", -1, 1, 0, 3, Q("56.92774 mm")))
pocket7 = doc.addObject("PartDesign::Pocket", "Pocket006")
body.addObject(pocket7)
pocket7.Profile = sketch12
pocket7.Length = 3

sketch13 = doc.addObject("Sketcher::SketchObject", "Sketch012")
body.addObject(sketch13)
sketch13.AttachmentSupport = (doc.XZ_Plane, [""])
sketch13.MapMode = "FlatFace"
sketch13.AttachmentOffset = App.Placement(App.Vector(0, 0, -2), App.Rotation())
sketch13.addGeometry(Part.Circle(App.Vector(61, 30.500082, 0), App.Vector(0, 0, 1), 3), False)
sketch13.addGeometry(Part.Circle(App.Vector(82.2, 39.000082, 0), App.Vector(0, 0, 1), 2), False)
sketch13.addGeometry(Part.Circle(App.Vector(82.2, 22.000082, 0), App.Vector(0, 0, 1), 2), False)
sketch13.addConstraint(Sketcher.Constraint("Equal", 1, 2))
sketch13.addConstraint(Sketcher.Constraint("Vertical", 1, 3, 2, 3))
sketch13.addConstraint(Sketcher.Constraint("Diameter", 0, Q("6 mm")))
sketch13.addConstraint(Sketcher.Constraint("Diameter", 1, Q("4 mm")))
sketch13.addConstraint(Sketcher.Constraint("DistanceX", -1, 1, 0, 3, Q("61 mm")))
sketch13.addConstraint(Sketcher.Constraint("DistanceY", 2, 3, 1, 3, Q("17 mm")))
sketch13.addConstraint(Sketcher.Constraint("DistanceX", -1, 1, 1, 3, Q("82.2 mm")))
sketch13.addConstraint(Sketcher.Constraint("DistanceY", 0, 3, 1, 3, Q("8.5 mm")))
sketch13.addConstraint(Sketcher.Constraint("DistanceY", -1, 1, 0, 3, Q("30.500082 mm")))
pocket8 = doc.addObject("PartDesign::Pocket", "Pocket007")
body.addObject(pocket8)
pocket8.Profile = sketch13
pocket8.Type = "ThroughAll"
pocket8.Midplane = True

doc.recompute()
